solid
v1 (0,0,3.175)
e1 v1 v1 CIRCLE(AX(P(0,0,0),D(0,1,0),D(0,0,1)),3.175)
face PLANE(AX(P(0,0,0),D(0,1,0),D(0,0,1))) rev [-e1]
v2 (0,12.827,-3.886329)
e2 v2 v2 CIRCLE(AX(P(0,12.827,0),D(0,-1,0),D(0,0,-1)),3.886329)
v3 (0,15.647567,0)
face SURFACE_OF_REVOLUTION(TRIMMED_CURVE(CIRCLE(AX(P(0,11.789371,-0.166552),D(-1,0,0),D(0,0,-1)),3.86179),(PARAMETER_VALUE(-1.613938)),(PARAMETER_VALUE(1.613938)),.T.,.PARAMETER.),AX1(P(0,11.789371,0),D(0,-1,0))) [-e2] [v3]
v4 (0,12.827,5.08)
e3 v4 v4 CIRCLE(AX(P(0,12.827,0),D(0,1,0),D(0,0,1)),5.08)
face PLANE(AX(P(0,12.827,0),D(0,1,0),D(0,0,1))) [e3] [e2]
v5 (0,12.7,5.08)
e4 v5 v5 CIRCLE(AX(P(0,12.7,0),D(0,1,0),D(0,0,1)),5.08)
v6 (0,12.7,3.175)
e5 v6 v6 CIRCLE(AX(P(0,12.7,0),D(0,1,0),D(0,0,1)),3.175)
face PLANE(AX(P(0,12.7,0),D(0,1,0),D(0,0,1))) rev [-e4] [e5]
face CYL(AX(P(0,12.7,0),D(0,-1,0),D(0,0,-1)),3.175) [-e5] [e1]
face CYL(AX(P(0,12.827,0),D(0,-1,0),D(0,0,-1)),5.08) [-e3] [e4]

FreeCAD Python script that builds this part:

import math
import FreeCAD as App
import Part
import Sketcher

V = App.Vector
Q = App.Units.Quantity

doc = App.newDocument("Part")
body = doc.addObject("PartDesign::Body", "Body")

# Sketch on XZ plane
sketch1 = doc.addObject("Sketcher::SketchObject", "Sketch")
body.addObject(sketch1)
sketch1.AttachmentSupport = (doc.XZ_Plane, [""])
sketch1.MapMode = "FlatFace"
sketch1.addGeometry(Part.Circle(V(0, 0, 0), V(0, 0, 1), 3.175), False)
sketch1.addConstraint([
    Sketcher.Constraint("Coincident", 0, 3, -1, 1),
    Sketcher.Constraint("Diameter", 0, Q("0.25 in")),
])
pad1 = doc.addObject("PartDesign::Pad", "Pad")
body.addObject(pad1)
pad1.Profile = sketch1
pad1.Length = Q("0.5 in")
pad1.Reversed = True

# Sketch on XZ plane
sketch2 = doc.addObject("Sketcher::SketchObject", "Sketch001")
body.addObject(sketch2)
sketch2.AttachmentSupport = (doc.XZ_Plane, [""])
sketch2.MapMode = "FlatFace"
sketch2.AttachmentOffset = App.Placement(V(0, 0, -0.5 * 25.4), App.Rotation())
sketch2.addGeometry(Part.Circle(V(0, 0, 0), V(0, 0, 1), 5.08), False)
sketch2.addConstraint([
    Sketcher.Constraint("Coincident", 0, 3, -1, 1),
    Sketcher.Constraint("Diameter", 0, Q("0.4 in")),
])
pad2 = doc.addObject("PartDesign::Pad", "Pad001")
body.addObject(pad2)
pad2.Profile = sketch2
pad2.Length = Q("0.005 in")
pad2.Reversed = True

# Sketch on XY plane
sketch3 = doc.addObject("Sketcher::SketchObject", "Sketch002")
body.addObject(sketch3)
sketch3.AttachmentSupport = (doc.XY_Plane, [""])
sketch3.MapMode = "FlatFace"
sketch3.addGeometry([
    Part.LineSegment(V(-3.886329, 12.827, 0), V(0, 12.827, 0)),
    Part.LineSegment(V(0, 12.827, 0), V(0, 15.647567, 0)),
    Part.ArcOfCircle(Part.Circle(V(-0.166552, 11.789371, 0), V(0, 0, 1), 3.86179), math.radians(87.528173), math.radians(164.413594)),
], False)
sketch3.addConstraint([
    Sketcher.Constraint("Coincident", 0, 2, 1, 1),
    Sketcher.Constraint("Coincident", 1, 2, 2, 1),
    Sketcher.Constraint("Coincident", 2, 2, 0, 1),
    Sketcher.Constraint("Horizontal", 0),
    Sketcher.Constraint("Vertical", 1),
    Sketcher.Constraint("PointOnObject", 0, 2, -2),
    Sketcher.Constraint("DistanceY", -1, 1, 0, 2, Q("0.505 in")),
    Sketcher.Constraint("Radius", 2, 3.86179),
    Sketcher.Constraint("DistanceX", 0, 1, 0, 2, 3.886329),
    Sketcher.Constraint("DistanceY", 1, 1, 1, 2, 2.820567),
])
revolution = doc.addObject("PartDesign::Revolution", "Revolution")
body.addObject(revolution)
revolution.Profile = sketch3
revolution.ReferenceAxis = (sketch3, ["V_Axis"])
revolution.Angle = 360

doc.recompute()
